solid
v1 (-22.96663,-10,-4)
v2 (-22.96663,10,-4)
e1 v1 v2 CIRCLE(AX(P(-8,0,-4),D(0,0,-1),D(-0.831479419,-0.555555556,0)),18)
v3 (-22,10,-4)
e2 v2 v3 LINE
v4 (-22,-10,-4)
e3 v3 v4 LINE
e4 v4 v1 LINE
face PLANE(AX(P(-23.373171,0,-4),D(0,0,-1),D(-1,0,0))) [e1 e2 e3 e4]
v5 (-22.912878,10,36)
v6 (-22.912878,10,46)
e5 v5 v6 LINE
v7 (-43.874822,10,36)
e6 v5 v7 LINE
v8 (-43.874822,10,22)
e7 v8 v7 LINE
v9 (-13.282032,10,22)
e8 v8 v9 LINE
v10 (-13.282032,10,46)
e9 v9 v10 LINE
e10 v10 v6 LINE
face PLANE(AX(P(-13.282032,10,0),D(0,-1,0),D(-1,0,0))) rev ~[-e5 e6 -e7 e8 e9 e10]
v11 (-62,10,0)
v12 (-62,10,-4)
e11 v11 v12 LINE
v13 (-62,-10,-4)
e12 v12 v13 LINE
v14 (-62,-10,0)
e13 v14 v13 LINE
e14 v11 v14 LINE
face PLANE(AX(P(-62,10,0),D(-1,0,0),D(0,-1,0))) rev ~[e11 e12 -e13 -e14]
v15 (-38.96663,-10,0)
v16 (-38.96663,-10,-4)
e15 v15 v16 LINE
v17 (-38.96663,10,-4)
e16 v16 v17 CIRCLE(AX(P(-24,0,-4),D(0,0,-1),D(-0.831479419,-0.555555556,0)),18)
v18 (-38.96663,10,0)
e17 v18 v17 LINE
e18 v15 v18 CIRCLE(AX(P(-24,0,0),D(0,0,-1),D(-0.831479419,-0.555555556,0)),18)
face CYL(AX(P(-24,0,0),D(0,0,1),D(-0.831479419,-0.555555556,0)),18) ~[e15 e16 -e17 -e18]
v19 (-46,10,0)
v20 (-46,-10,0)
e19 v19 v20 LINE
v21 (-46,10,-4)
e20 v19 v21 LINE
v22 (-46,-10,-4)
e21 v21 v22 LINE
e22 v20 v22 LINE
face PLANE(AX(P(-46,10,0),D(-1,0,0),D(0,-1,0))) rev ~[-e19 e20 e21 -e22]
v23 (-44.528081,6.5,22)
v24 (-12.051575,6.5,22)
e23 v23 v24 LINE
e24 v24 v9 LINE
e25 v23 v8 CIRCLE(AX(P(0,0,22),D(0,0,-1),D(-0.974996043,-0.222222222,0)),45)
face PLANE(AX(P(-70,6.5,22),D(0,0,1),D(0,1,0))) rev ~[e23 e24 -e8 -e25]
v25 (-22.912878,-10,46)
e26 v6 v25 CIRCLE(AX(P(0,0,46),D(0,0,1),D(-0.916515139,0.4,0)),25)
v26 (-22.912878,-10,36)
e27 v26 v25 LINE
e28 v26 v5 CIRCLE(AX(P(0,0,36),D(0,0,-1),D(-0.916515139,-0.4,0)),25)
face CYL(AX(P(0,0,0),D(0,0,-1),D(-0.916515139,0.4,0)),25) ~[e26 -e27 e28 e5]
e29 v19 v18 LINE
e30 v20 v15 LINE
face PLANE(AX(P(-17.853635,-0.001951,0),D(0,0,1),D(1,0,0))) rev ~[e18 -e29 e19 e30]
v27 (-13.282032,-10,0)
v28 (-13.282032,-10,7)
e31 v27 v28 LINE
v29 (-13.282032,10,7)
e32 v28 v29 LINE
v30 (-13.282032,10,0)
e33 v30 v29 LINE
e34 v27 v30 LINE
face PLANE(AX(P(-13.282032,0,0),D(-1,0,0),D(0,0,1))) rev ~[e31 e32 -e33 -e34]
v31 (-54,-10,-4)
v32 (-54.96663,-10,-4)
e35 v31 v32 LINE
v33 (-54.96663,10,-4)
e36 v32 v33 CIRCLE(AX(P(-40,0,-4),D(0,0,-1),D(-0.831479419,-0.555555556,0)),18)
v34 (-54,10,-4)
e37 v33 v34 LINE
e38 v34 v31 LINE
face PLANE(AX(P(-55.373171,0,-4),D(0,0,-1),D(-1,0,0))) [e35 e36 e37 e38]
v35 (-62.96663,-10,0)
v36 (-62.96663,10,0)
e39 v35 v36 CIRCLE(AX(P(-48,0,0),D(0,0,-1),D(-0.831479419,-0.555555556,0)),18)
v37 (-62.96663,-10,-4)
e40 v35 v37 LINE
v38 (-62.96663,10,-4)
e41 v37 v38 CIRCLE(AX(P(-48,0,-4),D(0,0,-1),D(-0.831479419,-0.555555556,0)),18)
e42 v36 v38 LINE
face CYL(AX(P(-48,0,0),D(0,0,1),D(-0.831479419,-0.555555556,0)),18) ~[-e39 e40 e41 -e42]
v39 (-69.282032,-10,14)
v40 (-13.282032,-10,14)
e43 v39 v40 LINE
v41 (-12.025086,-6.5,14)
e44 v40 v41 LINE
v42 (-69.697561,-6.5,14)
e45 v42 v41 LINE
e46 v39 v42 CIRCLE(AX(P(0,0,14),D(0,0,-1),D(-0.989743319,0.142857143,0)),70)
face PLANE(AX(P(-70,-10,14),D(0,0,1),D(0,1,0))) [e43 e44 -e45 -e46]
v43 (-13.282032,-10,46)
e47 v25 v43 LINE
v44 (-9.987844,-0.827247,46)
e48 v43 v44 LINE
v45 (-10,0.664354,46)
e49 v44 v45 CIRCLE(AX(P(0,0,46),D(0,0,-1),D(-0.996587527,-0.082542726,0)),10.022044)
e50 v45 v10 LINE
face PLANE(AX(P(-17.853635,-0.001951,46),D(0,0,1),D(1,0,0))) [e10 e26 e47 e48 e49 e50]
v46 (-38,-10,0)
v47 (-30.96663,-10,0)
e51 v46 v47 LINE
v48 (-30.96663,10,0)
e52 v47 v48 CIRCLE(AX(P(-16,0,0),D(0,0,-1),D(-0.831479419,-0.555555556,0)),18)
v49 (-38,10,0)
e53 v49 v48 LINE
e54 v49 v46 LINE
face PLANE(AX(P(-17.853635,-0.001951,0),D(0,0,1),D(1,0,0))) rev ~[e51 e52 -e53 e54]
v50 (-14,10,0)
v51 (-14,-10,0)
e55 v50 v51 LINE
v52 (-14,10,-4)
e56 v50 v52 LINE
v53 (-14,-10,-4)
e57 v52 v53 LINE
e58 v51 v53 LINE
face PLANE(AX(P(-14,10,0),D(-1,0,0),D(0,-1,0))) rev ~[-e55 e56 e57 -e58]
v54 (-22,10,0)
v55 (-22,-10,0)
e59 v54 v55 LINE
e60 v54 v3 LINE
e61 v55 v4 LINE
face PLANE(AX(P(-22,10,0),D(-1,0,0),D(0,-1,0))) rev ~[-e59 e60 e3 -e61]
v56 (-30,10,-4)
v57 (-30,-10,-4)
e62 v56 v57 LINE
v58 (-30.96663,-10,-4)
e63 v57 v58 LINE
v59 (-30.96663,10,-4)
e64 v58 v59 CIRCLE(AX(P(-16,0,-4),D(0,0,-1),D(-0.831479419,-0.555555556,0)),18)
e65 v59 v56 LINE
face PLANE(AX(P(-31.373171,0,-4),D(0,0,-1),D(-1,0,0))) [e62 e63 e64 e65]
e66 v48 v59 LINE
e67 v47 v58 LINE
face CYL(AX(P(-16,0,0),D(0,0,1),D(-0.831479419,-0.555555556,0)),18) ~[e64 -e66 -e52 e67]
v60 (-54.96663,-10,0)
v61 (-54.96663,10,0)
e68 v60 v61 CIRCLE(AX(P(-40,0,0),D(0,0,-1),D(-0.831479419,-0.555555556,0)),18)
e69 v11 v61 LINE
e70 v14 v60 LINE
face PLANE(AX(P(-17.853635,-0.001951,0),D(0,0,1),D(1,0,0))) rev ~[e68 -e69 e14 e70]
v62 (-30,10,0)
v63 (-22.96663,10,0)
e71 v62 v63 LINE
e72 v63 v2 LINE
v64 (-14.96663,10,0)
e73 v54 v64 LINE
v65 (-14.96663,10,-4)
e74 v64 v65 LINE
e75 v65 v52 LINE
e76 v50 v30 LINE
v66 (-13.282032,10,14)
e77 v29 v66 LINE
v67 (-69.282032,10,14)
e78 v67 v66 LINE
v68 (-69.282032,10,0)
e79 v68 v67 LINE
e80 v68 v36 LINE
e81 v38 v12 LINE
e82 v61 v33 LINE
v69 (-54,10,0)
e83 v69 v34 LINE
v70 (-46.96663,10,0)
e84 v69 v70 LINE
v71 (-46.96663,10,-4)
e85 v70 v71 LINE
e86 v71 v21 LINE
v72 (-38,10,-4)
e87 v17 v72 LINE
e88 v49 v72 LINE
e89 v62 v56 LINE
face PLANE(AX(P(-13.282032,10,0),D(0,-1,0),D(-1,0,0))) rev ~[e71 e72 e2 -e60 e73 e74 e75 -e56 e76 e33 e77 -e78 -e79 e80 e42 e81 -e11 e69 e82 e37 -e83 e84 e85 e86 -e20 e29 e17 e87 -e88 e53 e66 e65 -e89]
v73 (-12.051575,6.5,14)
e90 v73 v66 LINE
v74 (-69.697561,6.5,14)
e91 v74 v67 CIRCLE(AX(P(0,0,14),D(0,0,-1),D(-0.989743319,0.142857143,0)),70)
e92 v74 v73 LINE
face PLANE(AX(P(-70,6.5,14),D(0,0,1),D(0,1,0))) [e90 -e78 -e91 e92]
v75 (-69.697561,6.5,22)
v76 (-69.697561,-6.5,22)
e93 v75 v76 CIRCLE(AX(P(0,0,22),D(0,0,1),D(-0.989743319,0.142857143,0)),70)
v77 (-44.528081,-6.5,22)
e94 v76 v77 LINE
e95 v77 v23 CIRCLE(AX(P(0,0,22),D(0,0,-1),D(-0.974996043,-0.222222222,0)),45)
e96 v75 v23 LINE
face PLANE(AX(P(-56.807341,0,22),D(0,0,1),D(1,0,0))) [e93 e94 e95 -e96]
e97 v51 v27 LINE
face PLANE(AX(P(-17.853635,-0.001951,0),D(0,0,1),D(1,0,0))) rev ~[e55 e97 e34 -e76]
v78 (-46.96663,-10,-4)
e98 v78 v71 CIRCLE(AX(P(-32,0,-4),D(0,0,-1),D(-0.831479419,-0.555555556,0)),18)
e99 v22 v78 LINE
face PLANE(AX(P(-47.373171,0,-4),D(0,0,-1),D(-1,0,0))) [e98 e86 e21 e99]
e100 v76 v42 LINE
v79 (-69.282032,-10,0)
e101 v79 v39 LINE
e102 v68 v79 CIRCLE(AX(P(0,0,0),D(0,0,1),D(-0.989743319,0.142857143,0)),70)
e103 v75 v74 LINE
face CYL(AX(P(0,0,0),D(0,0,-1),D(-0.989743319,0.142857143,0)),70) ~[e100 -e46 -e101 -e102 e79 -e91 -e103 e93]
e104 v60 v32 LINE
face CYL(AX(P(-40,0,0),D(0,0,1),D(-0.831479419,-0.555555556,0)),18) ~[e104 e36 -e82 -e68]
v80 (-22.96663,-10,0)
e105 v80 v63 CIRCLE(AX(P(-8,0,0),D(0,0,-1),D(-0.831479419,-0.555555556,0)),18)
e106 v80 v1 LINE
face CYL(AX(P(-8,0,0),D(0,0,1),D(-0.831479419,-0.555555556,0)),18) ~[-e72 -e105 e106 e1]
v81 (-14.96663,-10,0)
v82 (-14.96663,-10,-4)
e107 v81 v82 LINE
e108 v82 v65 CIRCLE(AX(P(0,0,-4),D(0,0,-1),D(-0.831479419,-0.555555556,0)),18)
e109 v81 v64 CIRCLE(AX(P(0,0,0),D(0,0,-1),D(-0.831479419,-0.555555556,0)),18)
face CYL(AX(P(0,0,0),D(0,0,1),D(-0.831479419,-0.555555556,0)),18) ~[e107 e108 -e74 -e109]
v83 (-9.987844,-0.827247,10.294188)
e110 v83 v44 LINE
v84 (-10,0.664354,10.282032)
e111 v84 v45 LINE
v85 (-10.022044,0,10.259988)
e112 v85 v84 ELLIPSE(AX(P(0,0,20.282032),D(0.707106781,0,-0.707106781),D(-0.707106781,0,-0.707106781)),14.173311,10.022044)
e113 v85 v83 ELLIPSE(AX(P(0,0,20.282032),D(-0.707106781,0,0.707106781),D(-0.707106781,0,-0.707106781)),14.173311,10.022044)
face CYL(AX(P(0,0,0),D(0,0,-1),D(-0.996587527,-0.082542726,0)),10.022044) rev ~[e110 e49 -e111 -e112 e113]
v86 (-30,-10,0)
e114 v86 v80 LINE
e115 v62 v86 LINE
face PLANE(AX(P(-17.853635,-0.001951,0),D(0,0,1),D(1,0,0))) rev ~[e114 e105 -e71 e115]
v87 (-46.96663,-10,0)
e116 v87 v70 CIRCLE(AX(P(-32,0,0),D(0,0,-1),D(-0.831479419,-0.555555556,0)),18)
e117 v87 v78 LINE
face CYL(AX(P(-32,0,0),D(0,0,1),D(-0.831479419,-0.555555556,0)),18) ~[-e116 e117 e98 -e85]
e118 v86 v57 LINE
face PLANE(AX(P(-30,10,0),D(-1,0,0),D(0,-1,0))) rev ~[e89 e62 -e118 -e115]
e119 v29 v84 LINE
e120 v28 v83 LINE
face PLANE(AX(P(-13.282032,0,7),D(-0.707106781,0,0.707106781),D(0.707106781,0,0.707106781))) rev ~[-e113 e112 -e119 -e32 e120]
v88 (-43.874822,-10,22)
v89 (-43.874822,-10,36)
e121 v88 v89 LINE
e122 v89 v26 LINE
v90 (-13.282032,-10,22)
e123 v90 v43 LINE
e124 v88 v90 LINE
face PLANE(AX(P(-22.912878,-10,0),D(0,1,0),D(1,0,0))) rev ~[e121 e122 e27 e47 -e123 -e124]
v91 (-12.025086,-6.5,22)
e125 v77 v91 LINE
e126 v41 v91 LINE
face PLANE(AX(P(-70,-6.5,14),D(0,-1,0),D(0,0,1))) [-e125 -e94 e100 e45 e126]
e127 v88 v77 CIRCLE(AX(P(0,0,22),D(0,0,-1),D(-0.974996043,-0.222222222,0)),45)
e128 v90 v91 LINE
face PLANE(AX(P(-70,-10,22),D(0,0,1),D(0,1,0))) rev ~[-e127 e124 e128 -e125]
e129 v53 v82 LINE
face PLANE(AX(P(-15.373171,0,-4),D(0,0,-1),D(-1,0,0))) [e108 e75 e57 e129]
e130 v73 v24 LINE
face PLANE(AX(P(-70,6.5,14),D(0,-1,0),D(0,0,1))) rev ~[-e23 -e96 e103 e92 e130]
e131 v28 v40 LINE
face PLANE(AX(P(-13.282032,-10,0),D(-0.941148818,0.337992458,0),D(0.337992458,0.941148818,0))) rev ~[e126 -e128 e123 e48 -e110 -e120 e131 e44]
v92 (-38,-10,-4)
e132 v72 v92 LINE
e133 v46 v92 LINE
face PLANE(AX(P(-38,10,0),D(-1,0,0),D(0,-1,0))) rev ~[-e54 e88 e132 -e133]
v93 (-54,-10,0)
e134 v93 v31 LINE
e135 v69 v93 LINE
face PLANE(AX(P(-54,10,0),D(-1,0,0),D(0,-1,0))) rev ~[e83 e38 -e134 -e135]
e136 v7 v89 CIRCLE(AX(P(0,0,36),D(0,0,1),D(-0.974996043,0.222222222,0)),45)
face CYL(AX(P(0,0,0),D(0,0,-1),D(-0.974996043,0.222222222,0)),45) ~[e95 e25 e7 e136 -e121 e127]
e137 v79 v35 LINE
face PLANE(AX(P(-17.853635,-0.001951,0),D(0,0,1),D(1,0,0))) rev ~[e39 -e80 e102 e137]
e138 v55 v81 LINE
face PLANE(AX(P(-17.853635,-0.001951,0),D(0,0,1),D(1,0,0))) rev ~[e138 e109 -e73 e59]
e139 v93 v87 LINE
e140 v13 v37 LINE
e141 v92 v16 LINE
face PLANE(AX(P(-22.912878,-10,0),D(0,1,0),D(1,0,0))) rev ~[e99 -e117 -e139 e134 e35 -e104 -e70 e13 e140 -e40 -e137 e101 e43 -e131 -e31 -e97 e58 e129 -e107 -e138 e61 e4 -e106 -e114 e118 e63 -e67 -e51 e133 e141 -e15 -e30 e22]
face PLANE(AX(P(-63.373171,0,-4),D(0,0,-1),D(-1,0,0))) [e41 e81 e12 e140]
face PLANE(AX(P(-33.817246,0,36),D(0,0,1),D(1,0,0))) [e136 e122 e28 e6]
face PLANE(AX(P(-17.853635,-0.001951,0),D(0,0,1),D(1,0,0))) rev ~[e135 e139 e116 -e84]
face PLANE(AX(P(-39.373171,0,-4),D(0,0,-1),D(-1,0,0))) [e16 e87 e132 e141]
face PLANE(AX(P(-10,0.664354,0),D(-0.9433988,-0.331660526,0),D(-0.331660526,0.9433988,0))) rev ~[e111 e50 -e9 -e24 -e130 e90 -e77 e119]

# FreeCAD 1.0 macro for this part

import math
import FreeCAD as App
import Part
import Sketcher
Q = App.Units.Quantity


def add_polygon(sketch, points):
    """Adds a closed chain of lines whose ends are joined by coincident constraints."""
    first, n = sketch.GeometryCount, len(points)
    for a, b in zip(points, points[1:] + points[:1]):
        sketch.addGeometry(Part.LineSegment(App.Vector(*a, 0), App.Vector(*b, 0)), False)
    for i in range(n):
        sketch.addConstraint(Sketcher.Constraint("Coincident", first + i, 2, first + (i + 1) % n, 1))

doc = App.newDocument("Part")
body = doc.addObject("PartDesign::Body", "Body")

# Sketch on XY plane
sketch1 = body.newObject("Sketcher::SketchObject", "Sketch")
sketch1.AttachmentSupport = (doc.getObject("XY_Plane"), [""])
sketch1.MapMode = "FlatFace"
sketch1.addGeometry([
    Part.LineSegment(App.Vector(-69, -10, 0), App.Vector(-44, -10, 0)),
    Part.ArcOfCircle(Part.Circle(App.Vector(0, 0, 0), App.Vector(0, 0, 1), 45), math.radians(167), math.radians(193)),
    Part.LineSegment(App.Vector(-44, 10, 0), App.Vector(-69, 10, 0)),
    Part.ArcOfCircle(Part.Circle(App.Vector(0, 0, 0), App.Vector(0, 0, 1), 70), math.radians(171.79), math.radians(188.21)),
], False)
sketch1.addConstraint([
    Sketcher.Constraint("Coincident", 0, 2, 1, 2),
    Sketcher.Constraint("Coincident", 1, 1, 2, 1),
    Sketcher.Constraint("Coincident", 2, 2, 3, 1),
    Sketcher.Constraint("Coincident", 3, 2, 0, 1),
    Sketcher.Constraint("Horizontal", 0),
    Sketcher.Constraint("Horizontal", 2),
    Sketcher.Constraint("Coincident", 1, 3, -1, 1),
    Sketcher.Constraint("Coincident", 3, 3, -1, 1),
    Sketcher.Constraint("Vertical", 0, 2, 1, 1),
    Sketcher.Constraint("Radius", 1, Q("45 mm")),
    Sketcher.Constraint("Radius", 3, Q("70 mm")),
    Sketcher.Constraint("DistanceY", 0, 2, -1, 1, Q("10 mm")),
])
pad1 = body.newObject("PartDesign::Pad", "Pad")
pad1.Profile = sketch1
pad1.Length = 22

# Sketch on XY plane
sketch2 = body.newObject("Sketcher::SketchObject", "Sketch001")
sketch2.AttachmentSupport = (doc.getObject("XY_Plane"), [""])
sketch2.MapMode = "FlatFace"
sketch2.addGeometry([
    Part.LineSegment(App.Vector(-44, -10, 0), App.Vector(-23, -10, 0)),
    Part.ArcOfCircle(Part.Circle(App.Vector(0, 0, 0), App.Vector(0, 0, 1), 25), math.radians(156), math.radians(204)),
    Part.LineSegment(App.Vector(-23, 10, 0), App.Vector(-44, 10, 0)),
    Part.ArcOfCircle(Part.Circle(App.Vector(0, 0, 0), App.Vector(0, 0, 1), 45), math.radians(167), math.radians(193)),
], False)
sketch2.addConstraint([
    Sketcher.Constraint("Coincident", 0, 2, 1, 2),
    Sketcher.Constraint("Coincident", 1, 1, 2, 1),
    Sketcher.Constraint("Coincident", 2, 2, 3, 1),
    Sketcher.Constraint("Coincident", 3, 2, 0, 1),
    Sketcher.Constraint("Horizontal", 0),
    Sketcher.Constraint("Horizontal", 2),
    Sketcher.Constraint("Coincident", 1, 3, -1, 1),
    Sketcher.Constraint("Coincident", 3, 3, -1, 1),
    Sketcher.Constraint("Vertical", 0, 2, 1, 1),
    Sketcher.Constraint("Radius", 1, Q("25 mm")),
    Sketcher.Constraint("Radius", 3, Q("45 mm")),
    Sketcher.Constraint("DistanceY", 0, 2, -1, 1, Q("10 mm")),
])
pad2 = body.newObject("PartDesign::Pad", "Pad001")
pad2.Profile = sketch2
pad2.Length = 36

# Sketch on XY plane
sketch3 = body.newObject("Sketcher::SketchObject", "Sketch002")
sketch3.AttachmentSupport = (doc.getObject("XY_Plane"), [""])
sketch3.MapMode = "FlatFace"
sketch3.addGeometry([
    Part.LineSegment(App.Vector(-22.9, -10, 0), App.Vector(-13.3, -10, 0)),  # 0
    Part.LineSegment(App.Vector(-13.3, -10, 0), App.Vector(-10, -0.8, 0)),  # 1
    Part.ArcOfCircle(Part.Circle(App.Vector(0, 0, 0), App.Vector(0, 0, 1), 10), math.radians(176.2), math.radians(184.73)),  # 2
    Part.LineSegment(App.Vector(-10, 0.7, 0), App.Vector(-13.3, 10, 0)),  # 3
    Part.LineSegment(App.Vector(-13.3, 10, 0), App.Vector(-22.9, 10, 0)),  # 4
    Part.ArcOfCircle(Part.Circle(App.Vector(0, 0, 0), App.Vector(0, 0, 1), 25), math.radians(156), math.radians(204)),  # 5
], False)
sketch3.addConstraint([
    Sketcher.Constraint("Coincident", 0, 2, 1, 1),
    Sketcher.Constraint("Coincident", 1, 2, 2, 2),
    Sketcher.Constraint("Coincident", 2, 1, 3, 1),
    Sketcher.Constraint("Coincident", 3, 2, 4, 1),
    Sketcher.Constraint("Coincident", 4, 2, 5, 1),
    Sketcher.Constraint("Coincident", 5, 2, 0, 1),
    Sketcher.Constraint("Horizontal", 0),
    Sketcher.Constraint("Horizontal", 4),
    Sketcher.Constraint("Coincident", 2, 3, -1, 1),
    Sketcher.Constraint("Coincident", 5, 3, -1, 1),
    Sketcher.Constraint("Symmetric", 0, 2, 3, 2, -1),
    Sketcher.Constraint("Radius", 5, Q("25 mm")),
    Sketcher.Constraint("DistanceY", 0, 2, -1, 1, Q("10 mm")),
    Sketcher.Constraint("DistanceX", 2, 1, -1, 1, Q("10 mm")),
    Sketcher.Constraint("Radius", 2, Q("10.022044 mm")),
    Sketcher.Constraint("DistanceY", 1, 2, 2, 1, Q("1.491601 mm")),
    Sketcher.Constraint("Distance", 3, Q("9.895758 mm")),
])
pad3 = body.newObject("PartDesign::Pad", "Pad002")
pad3.Profile = sketch3
pad3.Length = 46

# Sketch on YZ plane
sketch4 = body.newObject("Sketcher::SketchObject", "Sketch003")
sketch4.AttachmentSupport = (doc.getObject("YZ_Plane"), [""])
sketch4.MapMode = "FlatFace"
sketch4.AttachmentOffset = App.Placement(App.Vector(0, 0, -70), App.Rotation())
add_polygon(sketch4, [(10, 14), (6.5, 14), (6.5, 22), (10, 22)])  # lines 0-3
add_polygon(sketch4, [(-6.5, 14), (-10, 14), (-10, 22), (-6.5, 22)])  # lines 4-7
sketch4.addConstraint([
    Sketcher.Constraint("Horizontal", 0),
    Sketcher.Constraint("Vertical", 1),
    Sketcher.Constraint("Horizontal", 2),
    Sketcher.Constraint("Vertical", 3),
    Sketcher.Constraint("Horizontal", 4),
    Sketcher.Constraint("Vertical", 5),
    Sketcher.Constraint("Horizontal", 6),
    Sketcher.Constraint("Vertical", 7),
    Sketcher.Constraint("Symmetric", 3, 2, 4, 2, -2),
    Sketcher.Constraint("Symmetric", 1, 2, 6, 2, -2),
    Sketcher.Constraint("DistanceY", 1, 1, 1, 2, Q("8 mm")),
    Sketcher.Constraint("DistanceX", 0, 2, 0, 1, Q("3.5 mm")),
    Sketcher.Constraint("DistanceY", -1, 1, 0, 2, Q("14 mm")),
    Sketcher.Constraint("DistanceX", -1, 1, 2, 2, Q("10 mm")),
])
pocket1 = body.newObject("PartDesign::Pocket", "Pocket")
pocket1.Profile = sketch4
pocket1.Type = "ThroughAll"
pocket1.Reversed = True

# Sketch on XZ plane
sketch5 = body.newObject("Sketcher::SketchObject", "Sketch004")
sketch5.AttachmentSupport = (doc.getObject("XZ_Plane"), [""])
sketch5.MapMode = "FlatFace"
add_polygon(sketch5, [(-13.3, 7), (-10, 10.3), (-10, 0), (-13.3, 0)])  # lines 0-3
sketch5.addConstraint([
    Sketcher.Constraint("Vertical", 1),
    Sketcher.Constraint("Horizontal", 2),
    Sketcher.Constraint("Vertical", 3),
    Sketcher.Constraint("PointOnObject", 1, 2, -1),
    Sketcher.Constraint("DistanceY", 3, 1, 3, 2, Q("7 mm")),
    Sketcher.Constraint("Angle", 0, Q("45 deg")),
    Sketcher.Constraint("DistanceX", 2, 2, 2, 1, Q("3.294188 mm")),
    Sketcher.Constraint("DistanceX", 0, 2, -1, 1, Q("9.987844 mm")),
])
pocket2 = body.newObject("PartDesign::Pocket", "Pocket001")
pocket2.Profile = sketch5
pocket2.Type = "ThroughAll"
pocket2.Midplane = True

# Sketch on XY plane
sketch6 = body.newObject("Sketcher::SketchObject", "Sketch005")
sketch6.AttachmentSupport = (doc.getObject("XY_Plane"), [""])
sketch6.MapMode = "FlatFace"
sketch6.addGeometry([
    Part.LineSegment(App.Vector(-14, 10, 0), App.Vector(-14, -10, 0)),
    Part.LineSegment(App.Vector(-14, -10, 0), App.Vector(-15, -10, 0)),
    Part.ArcOfCircle(Part.Circle(App.Vector(0, 0, 0), App.Vector(0, 0, 1), 18), math.radians(146), math.radians(214)),
    Part.LineSegment(App.Vector(-15, 10, 0), App.Vector(-14, 10, 0)),
], False)
sketch6.addConstraint([
    Sketcher.Constraint("Coincident", 0, 2, 1, 1),
    Sketcher.Constraint("Coincident", 1, 2, 2, 2),
    Sketcher.Constraint("Coincident", 2, 1, 3, 1),
    Sketcher.Constraint("Coincident", 3, 2, 0, 1),
    Sketcher.Constraint("Vertical", 0),
    Sketcher.Constraint("Horizontal", 1),
    Sketcher.Constraint("Horizontal", 3),
    Sketcher.Constraint("Coincident", 2, 3, -1, 1),
    Sketcher.Constraint("Vertical", 1, 2, 2, 1),
    Sketcher.Constraint("Radius", 2, Q("18 mm")),
    Sketcher.Constraint("DistanceY", 0, 2, 0, 1, Q("20 mm")),
    Sketcher.Constraint("DistanceX", 0, 2, -1, 1, Q("14 mm")),
])
pad4 = body.newObject("PartDesign::Pad", "Pad003")
pad4.Profile = sketch6
pad4.Length = 4
pad4.Reversed = True
doc.recompute()

linearpattern = body.newObject("PartDesign::LinearPattern", "LinearPattern")
linearpattern.Originals = [pad4]
linearpattern.Direction = (doc.getObject("X_Axis"), [""])
linearpattern.Mode = "offset"
linearpattern.Offset = 8
linearpattern.Occurrences = 7
linearpattern.Reversed = True
body.Tip = linearpattern

doc.recompute()
